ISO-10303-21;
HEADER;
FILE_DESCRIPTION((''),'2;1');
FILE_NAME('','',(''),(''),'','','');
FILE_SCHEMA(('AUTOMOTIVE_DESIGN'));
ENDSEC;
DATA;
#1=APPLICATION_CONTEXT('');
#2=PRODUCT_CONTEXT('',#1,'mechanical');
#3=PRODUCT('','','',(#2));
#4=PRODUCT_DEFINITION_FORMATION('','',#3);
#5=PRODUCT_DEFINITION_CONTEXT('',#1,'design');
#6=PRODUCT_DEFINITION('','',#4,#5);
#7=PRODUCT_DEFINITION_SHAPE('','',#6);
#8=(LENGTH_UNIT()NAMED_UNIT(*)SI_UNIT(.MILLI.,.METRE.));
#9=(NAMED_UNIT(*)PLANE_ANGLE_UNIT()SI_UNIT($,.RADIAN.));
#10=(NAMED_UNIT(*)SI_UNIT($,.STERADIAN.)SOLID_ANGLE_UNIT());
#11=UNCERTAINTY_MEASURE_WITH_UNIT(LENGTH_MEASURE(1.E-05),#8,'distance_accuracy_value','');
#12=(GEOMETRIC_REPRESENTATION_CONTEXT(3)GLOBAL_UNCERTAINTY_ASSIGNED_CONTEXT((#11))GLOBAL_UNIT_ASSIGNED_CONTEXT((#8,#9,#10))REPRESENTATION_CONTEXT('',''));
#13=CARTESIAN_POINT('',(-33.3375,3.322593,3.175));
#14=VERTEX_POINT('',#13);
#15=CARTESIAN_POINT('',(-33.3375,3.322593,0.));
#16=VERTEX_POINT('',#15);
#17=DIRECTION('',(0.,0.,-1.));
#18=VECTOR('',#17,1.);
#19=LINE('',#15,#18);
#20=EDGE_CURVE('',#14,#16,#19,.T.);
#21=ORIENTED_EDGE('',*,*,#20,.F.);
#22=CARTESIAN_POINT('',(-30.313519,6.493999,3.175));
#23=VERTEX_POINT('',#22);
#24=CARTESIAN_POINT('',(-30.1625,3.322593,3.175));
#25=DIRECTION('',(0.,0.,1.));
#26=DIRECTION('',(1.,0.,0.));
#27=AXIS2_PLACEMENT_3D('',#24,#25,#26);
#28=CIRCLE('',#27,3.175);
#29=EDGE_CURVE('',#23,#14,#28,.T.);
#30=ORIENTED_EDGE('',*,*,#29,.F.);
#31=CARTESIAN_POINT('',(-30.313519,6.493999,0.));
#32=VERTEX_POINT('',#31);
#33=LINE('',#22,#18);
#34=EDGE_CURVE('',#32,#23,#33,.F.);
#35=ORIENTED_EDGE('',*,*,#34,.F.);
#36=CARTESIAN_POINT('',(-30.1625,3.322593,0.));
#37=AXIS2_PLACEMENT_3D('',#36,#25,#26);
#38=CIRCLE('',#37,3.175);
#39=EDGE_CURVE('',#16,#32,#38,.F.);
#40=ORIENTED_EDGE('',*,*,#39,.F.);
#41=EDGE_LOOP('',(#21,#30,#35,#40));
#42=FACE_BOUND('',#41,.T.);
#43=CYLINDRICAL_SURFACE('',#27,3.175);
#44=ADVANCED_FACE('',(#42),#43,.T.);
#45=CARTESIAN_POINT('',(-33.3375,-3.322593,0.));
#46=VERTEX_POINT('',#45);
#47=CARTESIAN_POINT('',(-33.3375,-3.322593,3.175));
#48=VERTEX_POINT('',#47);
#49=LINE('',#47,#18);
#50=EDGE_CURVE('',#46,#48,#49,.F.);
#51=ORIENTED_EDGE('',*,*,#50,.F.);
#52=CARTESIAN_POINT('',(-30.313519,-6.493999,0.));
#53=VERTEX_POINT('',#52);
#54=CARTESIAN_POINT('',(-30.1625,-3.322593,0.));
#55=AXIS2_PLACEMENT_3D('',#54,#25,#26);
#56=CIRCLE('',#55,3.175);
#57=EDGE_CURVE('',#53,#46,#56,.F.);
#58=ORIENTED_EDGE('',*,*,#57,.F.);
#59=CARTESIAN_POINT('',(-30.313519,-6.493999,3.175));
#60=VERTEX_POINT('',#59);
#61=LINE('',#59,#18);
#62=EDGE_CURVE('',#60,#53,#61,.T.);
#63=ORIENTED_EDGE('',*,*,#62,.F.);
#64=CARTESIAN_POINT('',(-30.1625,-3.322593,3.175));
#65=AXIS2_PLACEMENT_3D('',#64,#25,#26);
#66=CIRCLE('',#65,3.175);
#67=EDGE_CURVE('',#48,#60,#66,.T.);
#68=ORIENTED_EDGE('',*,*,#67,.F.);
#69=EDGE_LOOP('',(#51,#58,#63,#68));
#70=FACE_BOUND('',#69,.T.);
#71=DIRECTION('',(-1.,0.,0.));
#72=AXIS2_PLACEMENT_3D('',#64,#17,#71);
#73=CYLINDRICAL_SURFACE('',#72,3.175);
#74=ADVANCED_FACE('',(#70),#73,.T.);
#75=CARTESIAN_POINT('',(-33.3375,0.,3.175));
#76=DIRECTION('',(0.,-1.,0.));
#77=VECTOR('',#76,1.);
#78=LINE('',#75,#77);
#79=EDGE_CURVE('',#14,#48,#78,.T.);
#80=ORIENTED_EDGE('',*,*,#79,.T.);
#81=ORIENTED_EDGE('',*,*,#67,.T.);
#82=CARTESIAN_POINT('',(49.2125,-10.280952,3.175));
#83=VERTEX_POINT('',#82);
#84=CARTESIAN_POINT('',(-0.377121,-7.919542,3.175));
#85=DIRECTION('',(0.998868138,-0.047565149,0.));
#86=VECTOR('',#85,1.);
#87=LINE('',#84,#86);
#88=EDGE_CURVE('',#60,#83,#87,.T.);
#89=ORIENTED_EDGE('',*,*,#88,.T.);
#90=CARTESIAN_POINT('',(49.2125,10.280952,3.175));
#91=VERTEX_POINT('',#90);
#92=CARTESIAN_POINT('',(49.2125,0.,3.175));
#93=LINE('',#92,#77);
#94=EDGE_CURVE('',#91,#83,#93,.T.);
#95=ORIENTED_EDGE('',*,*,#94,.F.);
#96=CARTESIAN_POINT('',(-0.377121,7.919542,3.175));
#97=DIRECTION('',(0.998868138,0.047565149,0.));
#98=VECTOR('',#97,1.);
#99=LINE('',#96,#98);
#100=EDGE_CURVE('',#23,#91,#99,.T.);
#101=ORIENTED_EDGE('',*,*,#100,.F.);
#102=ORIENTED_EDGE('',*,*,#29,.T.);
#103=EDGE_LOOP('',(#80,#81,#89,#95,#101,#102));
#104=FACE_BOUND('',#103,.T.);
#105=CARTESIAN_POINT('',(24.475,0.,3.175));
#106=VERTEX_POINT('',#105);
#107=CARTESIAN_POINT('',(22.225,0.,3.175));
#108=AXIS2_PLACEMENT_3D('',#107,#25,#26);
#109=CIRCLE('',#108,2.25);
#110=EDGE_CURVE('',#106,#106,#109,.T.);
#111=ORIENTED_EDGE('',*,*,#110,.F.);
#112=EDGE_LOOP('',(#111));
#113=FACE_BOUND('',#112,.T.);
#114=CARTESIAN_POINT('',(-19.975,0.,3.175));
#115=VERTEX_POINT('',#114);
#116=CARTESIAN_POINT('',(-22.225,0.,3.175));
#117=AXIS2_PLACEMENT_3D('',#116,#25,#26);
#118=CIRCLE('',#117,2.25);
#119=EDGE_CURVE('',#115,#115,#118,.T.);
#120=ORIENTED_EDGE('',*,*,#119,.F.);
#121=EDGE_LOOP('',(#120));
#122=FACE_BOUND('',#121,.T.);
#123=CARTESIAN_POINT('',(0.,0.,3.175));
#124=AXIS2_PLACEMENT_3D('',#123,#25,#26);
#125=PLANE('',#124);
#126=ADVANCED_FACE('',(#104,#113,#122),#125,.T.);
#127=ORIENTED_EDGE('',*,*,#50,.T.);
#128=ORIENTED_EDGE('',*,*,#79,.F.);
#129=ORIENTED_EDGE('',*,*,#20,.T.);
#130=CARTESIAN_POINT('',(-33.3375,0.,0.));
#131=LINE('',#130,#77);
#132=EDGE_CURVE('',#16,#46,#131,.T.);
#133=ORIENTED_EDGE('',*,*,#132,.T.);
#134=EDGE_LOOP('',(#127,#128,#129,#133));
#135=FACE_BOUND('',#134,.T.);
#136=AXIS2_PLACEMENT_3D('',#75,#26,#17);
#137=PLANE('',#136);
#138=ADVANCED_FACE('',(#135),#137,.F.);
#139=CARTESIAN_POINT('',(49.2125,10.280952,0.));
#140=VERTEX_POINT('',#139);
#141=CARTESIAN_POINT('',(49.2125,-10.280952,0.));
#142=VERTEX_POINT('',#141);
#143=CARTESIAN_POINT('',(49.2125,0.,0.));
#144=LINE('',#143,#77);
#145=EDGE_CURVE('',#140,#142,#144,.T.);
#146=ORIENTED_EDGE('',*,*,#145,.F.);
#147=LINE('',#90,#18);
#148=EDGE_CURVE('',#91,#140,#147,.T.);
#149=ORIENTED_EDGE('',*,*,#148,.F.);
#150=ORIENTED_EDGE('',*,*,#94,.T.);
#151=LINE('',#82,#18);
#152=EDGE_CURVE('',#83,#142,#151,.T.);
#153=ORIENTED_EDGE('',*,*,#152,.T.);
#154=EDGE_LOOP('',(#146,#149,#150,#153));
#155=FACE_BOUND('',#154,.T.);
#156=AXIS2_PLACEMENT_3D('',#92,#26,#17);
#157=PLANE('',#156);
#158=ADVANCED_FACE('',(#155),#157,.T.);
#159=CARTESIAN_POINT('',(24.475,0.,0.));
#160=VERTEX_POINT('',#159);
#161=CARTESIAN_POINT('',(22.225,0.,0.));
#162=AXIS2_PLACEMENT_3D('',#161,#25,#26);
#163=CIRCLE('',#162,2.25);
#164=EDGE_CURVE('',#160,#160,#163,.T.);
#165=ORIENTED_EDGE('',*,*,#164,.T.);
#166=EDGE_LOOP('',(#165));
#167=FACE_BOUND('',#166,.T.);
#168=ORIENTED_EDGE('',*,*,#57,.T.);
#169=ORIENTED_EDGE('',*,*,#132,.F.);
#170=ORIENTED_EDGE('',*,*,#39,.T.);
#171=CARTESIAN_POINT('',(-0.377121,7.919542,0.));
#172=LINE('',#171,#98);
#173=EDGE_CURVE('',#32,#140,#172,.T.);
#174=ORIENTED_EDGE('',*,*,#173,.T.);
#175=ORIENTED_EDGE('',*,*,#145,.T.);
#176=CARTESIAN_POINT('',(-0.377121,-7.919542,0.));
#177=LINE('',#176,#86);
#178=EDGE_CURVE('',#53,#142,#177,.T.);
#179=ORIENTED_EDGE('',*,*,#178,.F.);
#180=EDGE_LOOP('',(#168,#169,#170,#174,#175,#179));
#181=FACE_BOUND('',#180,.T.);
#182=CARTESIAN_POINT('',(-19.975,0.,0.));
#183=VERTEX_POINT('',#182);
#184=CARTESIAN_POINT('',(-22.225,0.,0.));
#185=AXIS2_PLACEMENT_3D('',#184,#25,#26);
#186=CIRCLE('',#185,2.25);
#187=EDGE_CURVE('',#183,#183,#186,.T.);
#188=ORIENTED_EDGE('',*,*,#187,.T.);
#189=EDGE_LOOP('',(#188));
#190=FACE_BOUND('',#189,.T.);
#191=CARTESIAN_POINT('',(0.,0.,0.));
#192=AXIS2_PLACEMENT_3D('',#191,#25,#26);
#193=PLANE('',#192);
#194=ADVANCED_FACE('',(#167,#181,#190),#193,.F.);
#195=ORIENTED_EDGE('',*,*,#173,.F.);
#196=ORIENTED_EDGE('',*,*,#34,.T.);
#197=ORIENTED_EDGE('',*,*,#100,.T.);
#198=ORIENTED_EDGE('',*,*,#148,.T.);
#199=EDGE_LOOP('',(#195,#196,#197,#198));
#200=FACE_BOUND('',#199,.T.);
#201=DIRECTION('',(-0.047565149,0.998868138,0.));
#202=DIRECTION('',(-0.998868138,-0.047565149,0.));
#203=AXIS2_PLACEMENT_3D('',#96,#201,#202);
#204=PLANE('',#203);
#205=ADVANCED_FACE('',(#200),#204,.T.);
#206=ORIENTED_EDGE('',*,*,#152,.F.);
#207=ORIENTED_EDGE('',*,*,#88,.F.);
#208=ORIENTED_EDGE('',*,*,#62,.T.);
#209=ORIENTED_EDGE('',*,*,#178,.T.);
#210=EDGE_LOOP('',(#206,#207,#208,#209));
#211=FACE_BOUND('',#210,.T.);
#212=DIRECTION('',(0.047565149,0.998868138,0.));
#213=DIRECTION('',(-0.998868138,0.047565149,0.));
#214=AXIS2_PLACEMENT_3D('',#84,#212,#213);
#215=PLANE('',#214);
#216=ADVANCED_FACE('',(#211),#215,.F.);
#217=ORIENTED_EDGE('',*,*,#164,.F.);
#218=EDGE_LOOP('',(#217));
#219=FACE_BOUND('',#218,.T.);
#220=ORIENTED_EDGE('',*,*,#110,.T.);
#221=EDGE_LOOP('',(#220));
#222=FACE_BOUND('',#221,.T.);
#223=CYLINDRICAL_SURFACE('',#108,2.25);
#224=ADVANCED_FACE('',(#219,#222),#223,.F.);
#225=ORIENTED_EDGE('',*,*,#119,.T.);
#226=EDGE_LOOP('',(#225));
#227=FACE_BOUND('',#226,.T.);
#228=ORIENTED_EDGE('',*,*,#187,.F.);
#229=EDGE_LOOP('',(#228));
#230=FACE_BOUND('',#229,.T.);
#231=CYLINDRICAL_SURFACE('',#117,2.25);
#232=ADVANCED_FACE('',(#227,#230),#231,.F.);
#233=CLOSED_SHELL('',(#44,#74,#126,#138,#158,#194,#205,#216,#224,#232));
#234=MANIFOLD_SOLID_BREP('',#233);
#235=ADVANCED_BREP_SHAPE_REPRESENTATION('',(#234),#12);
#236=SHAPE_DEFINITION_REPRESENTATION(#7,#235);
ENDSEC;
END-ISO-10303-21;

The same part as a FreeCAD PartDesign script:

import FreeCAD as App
import Part
import Sketcher
from FreeCAD import Vector
Q = App.Units.Quantity


def edges_at(feature, points):
    """Names of the edges that pass closest to the given points."""
    edges = feature.Shape.Edges
    near = lambda p: min(range(len(edges)), key=lambda i: edges[i].distToShape(Part.Vertex(*p))[0])
    return sorted({f"Edge{near(p) + 1}" for p in points})


def add_polygon(sketch, points):
    """Adds a closed chain of lines whose ends are joined by coincident constraints."""
    first, n = sketch.GeometryCount, len(points)
    for a, b in zip(points, points[1:] + points[:1]):
        sketch.addGeometry(Part.LineSegment(App.Vector(*a, 0), App.Vector(*b, 0)), False)
    for i in range(n):
        sketch.addConstraint(Sketcher.Constraint("Coincident", first + i, 2, first + (i + 1) % n, 1))

doc = App.newDocument("Part")
body = doc.addObject("PartDesign::Body", "Body")

# Sketch on XY plane
sketch1 = body.newObject("Sketcher::SketchObject", "Sketch")
sketch1.AttachmentSupport = (doc.getObject("XY_Plane"), [""])
sketch1.MapMode = "FlatFace"
add_polygon(sketch1, [(49.2125, 10.280952), (-33.3375, 6.35), (-33.3375, -6.35), (49.2125, -10.280952)])  # lines 0-3
sketch1.addConstraint(Sketcher.Constraint("Vertical", 1))
sketch1.addConstraint(Sketcher.Constraint("Vertical", 3))
sketch1.addConstraint(Sketcher.Constraint("Equal", 0, 2))
sketch1.addConstraint(Sketcher.Constraint("DistanceY", 1, 2, 1, 1, Q("0.5 in")))
sketch1.addConstraint(Sketcher.Constraint("DistanceY", -1, 1, 0, 2, Q("0.25 in")))
sketch1.addConstraint(Sketcher.Constraint("DistanceX", 1, 2, 2, 2, Q("3.25 in")))
sketch1.addConstraint(Sketcher.Constraint("DistanceX", 0, 2, -1, 1, Q("1.3125 in")))
sketch1.addConstraint(Sketcher.Constraint("Distance", 0, Q("82.643541 mm")))
pad1 = body.newObject("PartDesign::Pad", "Pad")
pad1.Profile = sketch1
pad1.Length = Q("0.125 in")

# Sketch on XY plane
sketch2 = body.newObject("Sketcher::SketchObject", "Sketch001")
sketch2.AttachmentSupport = (doc.getObject("XY_Plane"), [""])
sketch2.MapMode = "FlatFace"
sketch2.AttachmentOffset = App.Placement(Vector(0, 0, 0.125 * 25.4), App.Rotation())
sketch2.addGeometry(Part.Circle(Vector(-22.225, 0, 0), Vector(0, 0, 1), 2.25), False)
sketch2.addGeometry(Part.Circle(Vector(22.225, 0, 0), Vector(0, 0, 1), 2.25), False)
sketch2.addConstraint(Sketcher.Constraint("Equal", 0, 1))
sketch2.addConstraint(Sketcher.Constraint("Symmetric", 0, 3, 1, 3, -1, 1))
sketch2.addConstraint(Sketcher.Constraint("PointOnObject", 0, 3, -1))
sketch2.addConstraint(Sketcher.Constraint("Diameter", 0, Q("4.5 mm")))
sketch2.addConstraint(Sketcher.Constraint("DistanceX", 0, 3, 1, 3, Q("1.75 in")))
doc.recompute()
hole = body.newObject("PartDesign::Hole", "Hole")
hole.Profile = sketch2
hole.ThreadType = "None"
hole.Diameter = 4.5
hole.DepthType = "ThroughAll"
doc.recompute()

fillet = body.newObject("PartDesign::Fillet", "Fillet")
fillet.Base = (hole, edges_at(hole, [(-33.337, -6.35, 1.587), (-33.337, 6.35, 1.587)]))
fillet.Radius = Q("0.125 in")

doc.recompute()
